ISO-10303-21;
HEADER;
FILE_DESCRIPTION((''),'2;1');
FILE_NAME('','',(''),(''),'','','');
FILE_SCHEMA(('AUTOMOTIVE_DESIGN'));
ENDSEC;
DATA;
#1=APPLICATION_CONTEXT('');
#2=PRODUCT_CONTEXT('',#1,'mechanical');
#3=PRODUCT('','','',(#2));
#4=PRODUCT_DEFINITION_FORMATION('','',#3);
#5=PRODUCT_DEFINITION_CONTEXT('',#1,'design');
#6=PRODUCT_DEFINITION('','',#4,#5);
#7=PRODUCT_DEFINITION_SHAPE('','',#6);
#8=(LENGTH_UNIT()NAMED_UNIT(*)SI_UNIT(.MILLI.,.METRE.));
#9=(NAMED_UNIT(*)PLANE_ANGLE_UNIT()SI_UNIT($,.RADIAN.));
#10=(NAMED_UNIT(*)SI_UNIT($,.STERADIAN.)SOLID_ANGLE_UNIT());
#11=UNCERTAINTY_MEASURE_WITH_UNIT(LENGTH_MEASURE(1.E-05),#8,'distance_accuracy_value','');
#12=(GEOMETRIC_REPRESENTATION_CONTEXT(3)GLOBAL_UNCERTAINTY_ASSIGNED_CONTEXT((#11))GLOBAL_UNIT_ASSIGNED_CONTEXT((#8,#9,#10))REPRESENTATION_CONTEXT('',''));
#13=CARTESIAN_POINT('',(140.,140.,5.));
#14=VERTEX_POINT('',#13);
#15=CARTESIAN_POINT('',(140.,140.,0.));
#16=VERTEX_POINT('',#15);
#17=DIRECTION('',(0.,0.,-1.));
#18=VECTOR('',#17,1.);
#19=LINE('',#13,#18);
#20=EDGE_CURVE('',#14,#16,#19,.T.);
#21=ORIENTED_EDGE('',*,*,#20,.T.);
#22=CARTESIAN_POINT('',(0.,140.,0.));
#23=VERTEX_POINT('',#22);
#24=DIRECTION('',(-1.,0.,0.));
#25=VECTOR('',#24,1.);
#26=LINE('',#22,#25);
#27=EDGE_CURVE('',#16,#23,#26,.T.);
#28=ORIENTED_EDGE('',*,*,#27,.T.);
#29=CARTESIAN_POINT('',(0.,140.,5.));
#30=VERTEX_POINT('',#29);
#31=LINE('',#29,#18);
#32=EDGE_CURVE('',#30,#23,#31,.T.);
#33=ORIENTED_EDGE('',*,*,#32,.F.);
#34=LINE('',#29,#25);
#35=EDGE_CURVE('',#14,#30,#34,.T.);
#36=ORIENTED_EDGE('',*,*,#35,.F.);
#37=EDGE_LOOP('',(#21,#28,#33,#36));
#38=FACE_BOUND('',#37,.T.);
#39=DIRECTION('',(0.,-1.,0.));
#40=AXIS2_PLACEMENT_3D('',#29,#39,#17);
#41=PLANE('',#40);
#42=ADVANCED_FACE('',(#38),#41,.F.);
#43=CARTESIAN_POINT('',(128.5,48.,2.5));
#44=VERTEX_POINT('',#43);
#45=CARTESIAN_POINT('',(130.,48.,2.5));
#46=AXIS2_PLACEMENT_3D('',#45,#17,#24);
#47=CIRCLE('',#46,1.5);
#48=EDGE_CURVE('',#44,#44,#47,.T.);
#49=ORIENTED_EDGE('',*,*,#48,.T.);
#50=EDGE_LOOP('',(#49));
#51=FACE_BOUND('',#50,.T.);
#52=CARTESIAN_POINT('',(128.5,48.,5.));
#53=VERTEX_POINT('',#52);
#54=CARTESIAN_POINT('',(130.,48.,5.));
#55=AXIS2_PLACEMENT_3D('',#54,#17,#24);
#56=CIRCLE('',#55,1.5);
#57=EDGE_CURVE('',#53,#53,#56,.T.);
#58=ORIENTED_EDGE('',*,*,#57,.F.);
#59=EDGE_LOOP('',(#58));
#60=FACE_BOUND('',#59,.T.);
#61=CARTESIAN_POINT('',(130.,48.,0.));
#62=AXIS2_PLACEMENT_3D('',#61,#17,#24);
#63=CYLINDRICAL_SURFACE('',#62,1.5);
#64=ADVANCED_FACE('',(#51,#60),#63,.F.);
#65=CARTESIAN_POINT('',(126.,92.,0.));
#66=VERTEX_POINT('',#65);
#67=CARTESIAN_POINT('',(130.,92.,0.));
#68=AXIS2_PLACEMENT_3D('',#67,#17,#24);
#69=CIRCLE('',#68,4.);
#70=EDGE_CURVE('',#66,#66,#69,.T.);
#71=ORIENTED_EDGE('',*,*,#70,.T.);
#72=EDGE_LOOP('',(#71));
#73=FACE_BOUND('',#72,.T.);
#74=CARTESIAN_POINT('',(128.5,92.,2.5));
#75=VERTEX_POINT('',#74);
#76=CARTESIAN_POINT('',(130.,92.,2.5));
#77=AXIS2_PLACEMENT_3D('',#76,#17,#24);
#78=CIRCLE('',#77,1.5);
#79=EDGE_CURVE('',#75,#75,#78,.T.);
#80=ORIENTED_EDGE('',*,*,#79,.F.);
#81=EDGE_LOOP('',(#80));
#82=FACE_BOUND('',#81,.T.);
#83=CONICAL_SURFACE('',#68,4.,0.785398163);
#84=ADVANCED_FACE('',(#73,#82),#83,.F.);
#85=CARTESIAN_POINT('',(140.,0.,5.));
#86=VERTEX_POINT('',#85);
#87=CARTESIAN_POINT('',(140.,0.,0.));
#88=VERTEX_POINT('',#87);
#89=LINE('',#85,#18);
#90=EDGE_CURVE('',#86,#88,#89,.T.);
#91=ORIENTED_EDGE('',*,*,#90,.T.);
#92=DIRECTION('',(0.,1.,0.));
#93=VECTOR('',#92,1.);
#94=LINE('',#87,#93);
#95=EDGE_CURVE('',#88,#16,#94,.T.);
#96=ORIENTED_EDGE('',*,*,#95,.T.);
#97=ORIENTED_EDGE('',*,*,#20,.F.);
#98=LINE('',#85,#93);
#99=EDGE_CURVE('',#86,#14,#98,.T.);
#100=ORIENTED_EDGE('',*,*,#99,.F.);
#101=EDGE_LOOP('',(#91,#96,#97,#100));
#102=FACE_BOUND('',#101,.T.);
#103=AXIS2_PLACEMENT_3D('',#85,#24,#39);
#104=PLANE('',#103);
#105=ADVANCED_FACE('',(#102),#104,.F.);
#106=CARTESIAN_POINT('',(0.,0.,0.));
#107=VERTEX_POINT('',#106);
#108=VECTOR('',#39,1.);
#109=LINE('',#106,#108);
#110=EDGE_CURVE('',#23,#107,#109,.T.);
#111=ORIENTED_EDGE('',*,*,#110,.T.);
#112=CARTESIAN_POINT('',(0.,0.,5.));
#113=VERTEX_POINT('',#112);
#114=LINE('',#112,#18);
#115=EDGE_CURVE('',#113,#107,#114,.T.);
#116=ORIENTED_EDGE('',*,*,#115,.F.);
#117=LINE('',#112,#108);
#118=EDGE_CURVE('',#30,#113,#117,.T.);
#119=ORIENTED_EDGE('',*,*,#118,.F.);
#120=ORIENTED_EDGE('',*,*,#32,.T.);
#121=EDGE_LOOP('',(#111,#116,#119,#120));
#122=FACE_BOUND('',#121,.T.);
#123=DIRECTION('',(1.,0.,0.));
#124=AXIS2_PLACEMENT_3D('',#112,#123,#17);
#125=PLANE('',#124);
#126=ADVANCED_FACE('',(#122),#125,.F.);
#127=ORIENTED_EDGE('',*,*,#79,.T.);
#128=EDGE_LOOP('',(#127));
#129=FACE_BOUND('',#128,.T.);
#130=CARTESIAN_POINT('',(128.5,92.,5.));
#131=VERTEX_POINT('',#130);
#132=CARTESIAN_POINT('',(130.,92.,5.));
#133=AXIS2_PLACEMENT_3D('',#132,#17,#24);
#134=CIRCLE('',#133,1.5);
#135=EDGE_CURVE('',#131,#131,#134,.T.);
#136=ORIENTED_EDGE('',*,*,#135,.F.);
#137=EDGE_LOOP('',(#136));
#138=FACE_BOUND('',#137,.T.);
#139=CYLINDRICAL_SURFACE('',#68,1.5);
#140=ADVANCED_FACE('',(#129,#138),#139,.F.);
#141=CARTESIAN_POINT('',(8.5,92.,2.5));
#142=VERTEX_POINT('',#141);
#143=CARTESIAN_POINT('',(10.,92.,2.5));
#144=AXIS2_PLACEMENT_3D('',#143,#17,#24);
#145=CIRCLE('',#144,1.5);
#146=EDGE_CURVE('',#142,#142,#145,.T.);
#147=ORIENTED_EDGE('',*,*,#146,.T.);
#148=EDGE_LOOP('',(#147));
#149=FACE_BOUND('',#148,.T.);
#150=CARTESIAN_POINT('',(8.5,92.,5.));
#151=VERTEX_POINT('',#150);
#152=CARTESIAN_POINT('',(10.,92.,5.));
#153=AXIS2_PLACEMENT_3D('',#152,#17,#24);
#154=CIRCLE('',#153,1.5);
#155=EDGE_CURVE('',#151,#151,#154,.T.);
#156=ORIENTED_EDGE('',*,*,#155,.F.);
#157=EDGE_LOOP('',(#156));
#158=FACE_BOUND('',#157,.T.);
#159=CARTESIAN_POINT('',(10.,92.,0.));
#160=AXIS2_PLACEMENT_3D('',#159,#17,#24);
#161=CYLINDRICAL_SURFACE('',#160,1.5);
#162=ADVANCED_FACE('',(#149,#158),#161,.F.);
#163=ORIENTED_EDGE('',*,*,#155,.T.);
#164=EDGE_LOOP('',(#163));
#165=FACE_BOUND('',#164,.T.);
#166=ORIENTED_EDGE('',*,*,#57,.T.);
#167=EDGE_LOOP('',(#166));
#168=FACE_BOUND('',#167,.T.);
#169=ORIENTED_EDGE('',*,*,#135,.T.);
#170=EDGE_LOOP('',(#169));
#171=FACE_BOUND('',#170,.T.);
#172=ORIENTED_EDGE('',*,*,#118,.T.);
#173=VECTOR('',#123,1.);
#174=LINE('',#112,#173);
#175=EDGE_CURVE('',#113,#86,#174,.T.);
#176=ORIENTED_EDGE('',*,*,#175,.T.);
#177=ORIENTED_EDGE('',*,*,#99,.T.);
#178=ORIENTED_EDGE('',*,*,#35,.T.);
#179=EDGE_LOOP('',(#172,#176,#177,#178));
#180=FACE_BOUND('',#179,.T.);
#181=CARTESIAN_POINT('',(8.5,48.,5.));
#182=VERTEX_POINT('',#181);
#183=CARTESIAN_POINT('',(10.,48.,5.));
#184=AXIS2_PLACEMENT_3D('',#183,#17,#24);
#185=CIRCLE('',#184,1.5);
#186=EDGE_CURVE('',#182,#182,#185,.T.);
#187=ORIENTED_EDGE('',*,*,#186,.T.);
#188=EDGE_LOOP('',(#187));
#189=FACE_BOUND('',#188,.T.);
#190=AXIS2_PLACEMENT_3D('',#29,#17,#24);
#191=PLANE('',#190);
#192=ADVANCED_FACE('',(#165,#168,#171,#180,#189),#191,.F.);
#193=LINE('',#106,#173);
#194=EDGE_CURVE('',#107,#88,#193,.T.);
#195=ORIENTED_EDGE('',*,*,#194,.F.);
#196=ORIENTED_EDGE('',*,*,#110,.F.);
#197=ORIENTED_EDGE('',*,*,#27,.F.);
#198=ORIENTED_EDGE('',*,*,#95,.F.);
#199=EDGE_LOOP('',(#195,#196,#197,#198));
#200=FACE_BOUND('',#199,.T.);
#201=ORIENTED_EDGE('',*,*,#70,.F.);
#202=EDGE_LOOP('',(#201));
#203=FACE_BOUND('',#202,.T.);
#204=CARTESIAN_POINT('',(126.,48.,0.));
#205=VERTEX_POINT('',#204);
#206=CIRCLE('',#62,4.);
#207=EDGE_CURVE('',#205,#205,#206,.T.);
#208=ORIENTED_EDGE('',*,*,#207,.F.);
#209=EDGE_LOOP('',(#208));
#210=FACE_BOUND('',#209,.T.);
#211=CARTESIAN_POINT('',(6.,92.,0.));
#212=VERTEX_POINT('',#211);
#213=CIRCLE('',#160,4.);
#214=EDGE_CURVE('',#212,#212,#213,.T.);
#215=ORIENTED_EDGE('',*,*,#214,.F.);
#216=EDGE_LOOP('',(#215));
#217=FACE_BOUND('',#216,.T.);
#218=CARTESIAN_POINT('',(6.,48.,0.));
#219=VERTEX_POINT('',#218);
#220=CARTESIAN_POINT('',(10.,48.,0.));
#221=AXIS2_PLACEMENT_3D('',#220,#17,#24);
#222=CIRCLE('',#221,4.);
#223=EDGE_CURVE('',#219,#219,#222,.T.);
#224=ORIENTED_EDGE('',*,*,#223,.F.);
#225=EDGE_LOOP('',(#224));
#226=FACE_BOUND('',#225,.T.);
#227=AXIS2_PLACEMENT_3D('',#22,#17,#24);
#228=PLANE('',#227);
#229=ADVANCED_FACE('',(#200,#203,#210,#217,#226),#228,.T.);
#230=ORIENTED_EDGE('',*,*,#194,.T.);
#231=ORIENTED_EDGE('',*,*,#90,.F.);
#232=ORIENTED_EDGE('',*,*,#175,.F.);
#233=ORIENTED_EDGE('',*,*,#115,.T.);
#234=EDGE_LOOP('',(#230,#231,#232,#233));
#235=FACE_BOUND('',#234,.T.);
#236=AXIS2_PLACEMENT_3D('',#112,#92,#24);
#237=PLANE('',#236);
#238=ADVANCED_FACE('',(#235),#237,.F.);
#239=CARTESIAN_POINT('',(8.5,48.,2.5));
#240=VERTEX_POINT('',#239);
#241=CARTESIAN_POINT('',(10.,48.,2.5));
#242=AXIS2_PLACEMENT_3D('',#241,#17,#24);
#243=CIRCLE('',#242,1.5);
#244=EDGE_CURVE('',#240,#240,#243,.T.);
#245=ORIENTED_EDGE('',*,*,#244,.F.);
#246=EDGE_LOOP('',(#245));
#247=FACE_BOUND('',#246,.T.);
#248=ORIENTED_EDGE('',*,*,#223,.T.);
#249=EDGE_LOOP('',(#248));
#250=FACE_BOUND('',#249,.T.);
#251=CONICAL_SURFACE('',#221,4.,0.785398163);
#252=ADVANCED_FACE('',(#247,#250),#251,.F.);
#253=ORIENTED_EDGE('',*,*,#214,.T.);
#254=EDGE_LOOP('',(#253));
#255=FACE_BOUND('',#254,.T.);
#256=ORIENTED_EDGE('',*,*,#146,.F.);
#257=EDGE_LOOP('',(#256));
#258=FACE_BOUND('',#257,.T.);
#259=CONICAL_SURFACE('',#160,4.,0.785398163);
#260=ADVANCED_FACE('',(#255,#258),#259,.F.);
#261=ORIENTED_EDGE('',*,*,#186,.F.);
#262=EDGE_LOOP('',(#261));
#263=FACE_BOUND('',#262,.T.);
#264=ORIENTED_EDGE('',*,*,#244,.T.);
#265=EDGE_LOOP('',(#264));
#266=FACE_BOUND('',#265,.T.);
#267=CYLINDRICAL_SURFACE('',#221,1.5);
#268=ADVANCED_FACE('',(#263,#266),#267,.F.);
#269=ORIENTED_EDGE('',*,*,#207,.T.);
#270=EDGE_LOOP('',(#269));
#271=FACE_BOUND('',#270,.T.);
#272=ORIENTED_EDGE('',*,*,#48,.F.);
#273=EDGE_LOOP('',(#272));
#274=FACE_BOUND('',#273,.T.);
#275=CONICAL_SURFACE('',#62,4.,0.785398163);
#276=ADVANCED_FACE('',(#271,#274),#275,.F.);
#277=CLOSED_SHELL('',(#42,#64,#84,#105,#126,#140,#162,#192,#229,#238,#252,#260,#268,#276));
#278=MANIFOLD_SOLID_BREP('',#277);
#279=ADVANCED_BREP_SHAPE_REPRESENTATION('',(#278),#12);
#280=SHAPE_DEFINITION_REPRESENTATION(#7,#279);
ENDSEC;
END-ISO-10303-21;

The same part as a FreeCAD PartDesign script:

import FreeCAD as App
import Part
import Sketcher
from FreeCAD import Vector
Q = App.Units.Quantity


def add_polygon(sketch, points):
    """Adds a closed chain of lines whose ends are joined by coincident constraints."""
    first, n = sketch.GeometryCount, len(points)
    for a, b in zip(points, points[1:] + points[:1]):
        sketch.addGeometry(Part.LineSegment(App.Vector(*a, 0), App.Vector(*b, 0)), False)
    for i in range(n):
        sketch.addConstraint(Sketcher.Constraint("Coincident", first + i, 2, first + (i + 1) % n, 1))

doc = App.newDocument("Part")
body = doc.addObject("PartDesign::Body", "Body")

# Sketch on XY plane
sketch1 = body.newObject("Sketcher::SketchObject", "Sketch")
sketch1.AttachmentSupport = (doc.getObject("XY_Plane"), [""])
sketch1.MapMode = "FlatFace"
add_polygon(sketch1, [(0, 140), (0, 0), (140, 0), (140, 140)])  # lines 0-3
sketch1.addConstraint([
    Sketcher.Constraint("Vertical", 0),
    Sketcher.Constraint("Horizontal", 1),
    Sketcher.Constraint("Vertical", 2),
    Sketcher.Constraint("Horizontal", 3),
    Sketcher.Constraint("Coincident", 0, 2, -1, 1),
    Sketcher.Constraint("Equal", 3, 0),
    Sketcher.Constraint("DistanceX", 1, 1, 1, 2, Q("140 mm")),
])
pad1 = body.newObject("PartDesign::Pad", "Pad")
pad1.Profile = sketch1
pad1.Length = 5

# Sketch on XY plane
sketch2 = body.newObject("Sketcher::SketchObject", "Sketch001")
sketch2.AttachmentSupport = (doc.getObject("XY_Plane"), [""])
sketch2.MapMode = "FlatFace"
sketch2.addGeometry([
    Part.Circle(Vector(130, 92, 0), Vector(0, 0, 1), 1.5),
    Part.Circle(Vector(130, 48, 0), Vector(0, 0, 1), 1.5),
    Part.Circle(Vector(10, 92, 0), Vector(0, 0, 1), 1.5),
    Part.Circle(Vector(10, 48, 0), Vector(0, 0, 1), 1.5),
], False)
sketch2.addConstraint([
    Sketcher.Constraint("Equal", 0, 1),
    Sketcher.Constraint("Equal", 1, 2),
    Sketcher.Constraint("Equal", 2, 3),
    Sketcher.Constraint("Horizontal", 0, 3, 2, 3),
    Sketcher.Constraint("Horizontal", 1, 3, 3, 3),
    Sketcher.Constraint("Vertical", 0, 3, 1, 3),
    Sketcher.Constraint("Vertical", 2, 3, 3, 3),
    Sketcher.Constraint("Diameter", 0, Q("3 mm")),
    Sketcher.Constraint("DistanceX", -1, 1, 0, 3, Q("130 mm")),
    Sketcher.Constraint("DistanceY", -1, 1, 0, 3, Q("92 mm")),
    Sketcher.Constraint("DistanceY", -1, 1, 1, 3, Q("48 mm")),
    Sketcher.Constraint("DistanceX", -1, 1, 2, 3, Q("10 mm")),
])
doc.recompute()
hole = body.newObject("PartDesign::Hole", "Hole")
hole.Profile = sketch2
hole.ThreadType = "None"
hole.Diameter = 3
hole.DepthType = "ThroughAll"
hole.HoleCutType = "Countersink"
hole.HoleCutDiameter = 8
hole.HoleCutCountersinkAngle = 90
hole.Reversed = True

doc.recompute()
